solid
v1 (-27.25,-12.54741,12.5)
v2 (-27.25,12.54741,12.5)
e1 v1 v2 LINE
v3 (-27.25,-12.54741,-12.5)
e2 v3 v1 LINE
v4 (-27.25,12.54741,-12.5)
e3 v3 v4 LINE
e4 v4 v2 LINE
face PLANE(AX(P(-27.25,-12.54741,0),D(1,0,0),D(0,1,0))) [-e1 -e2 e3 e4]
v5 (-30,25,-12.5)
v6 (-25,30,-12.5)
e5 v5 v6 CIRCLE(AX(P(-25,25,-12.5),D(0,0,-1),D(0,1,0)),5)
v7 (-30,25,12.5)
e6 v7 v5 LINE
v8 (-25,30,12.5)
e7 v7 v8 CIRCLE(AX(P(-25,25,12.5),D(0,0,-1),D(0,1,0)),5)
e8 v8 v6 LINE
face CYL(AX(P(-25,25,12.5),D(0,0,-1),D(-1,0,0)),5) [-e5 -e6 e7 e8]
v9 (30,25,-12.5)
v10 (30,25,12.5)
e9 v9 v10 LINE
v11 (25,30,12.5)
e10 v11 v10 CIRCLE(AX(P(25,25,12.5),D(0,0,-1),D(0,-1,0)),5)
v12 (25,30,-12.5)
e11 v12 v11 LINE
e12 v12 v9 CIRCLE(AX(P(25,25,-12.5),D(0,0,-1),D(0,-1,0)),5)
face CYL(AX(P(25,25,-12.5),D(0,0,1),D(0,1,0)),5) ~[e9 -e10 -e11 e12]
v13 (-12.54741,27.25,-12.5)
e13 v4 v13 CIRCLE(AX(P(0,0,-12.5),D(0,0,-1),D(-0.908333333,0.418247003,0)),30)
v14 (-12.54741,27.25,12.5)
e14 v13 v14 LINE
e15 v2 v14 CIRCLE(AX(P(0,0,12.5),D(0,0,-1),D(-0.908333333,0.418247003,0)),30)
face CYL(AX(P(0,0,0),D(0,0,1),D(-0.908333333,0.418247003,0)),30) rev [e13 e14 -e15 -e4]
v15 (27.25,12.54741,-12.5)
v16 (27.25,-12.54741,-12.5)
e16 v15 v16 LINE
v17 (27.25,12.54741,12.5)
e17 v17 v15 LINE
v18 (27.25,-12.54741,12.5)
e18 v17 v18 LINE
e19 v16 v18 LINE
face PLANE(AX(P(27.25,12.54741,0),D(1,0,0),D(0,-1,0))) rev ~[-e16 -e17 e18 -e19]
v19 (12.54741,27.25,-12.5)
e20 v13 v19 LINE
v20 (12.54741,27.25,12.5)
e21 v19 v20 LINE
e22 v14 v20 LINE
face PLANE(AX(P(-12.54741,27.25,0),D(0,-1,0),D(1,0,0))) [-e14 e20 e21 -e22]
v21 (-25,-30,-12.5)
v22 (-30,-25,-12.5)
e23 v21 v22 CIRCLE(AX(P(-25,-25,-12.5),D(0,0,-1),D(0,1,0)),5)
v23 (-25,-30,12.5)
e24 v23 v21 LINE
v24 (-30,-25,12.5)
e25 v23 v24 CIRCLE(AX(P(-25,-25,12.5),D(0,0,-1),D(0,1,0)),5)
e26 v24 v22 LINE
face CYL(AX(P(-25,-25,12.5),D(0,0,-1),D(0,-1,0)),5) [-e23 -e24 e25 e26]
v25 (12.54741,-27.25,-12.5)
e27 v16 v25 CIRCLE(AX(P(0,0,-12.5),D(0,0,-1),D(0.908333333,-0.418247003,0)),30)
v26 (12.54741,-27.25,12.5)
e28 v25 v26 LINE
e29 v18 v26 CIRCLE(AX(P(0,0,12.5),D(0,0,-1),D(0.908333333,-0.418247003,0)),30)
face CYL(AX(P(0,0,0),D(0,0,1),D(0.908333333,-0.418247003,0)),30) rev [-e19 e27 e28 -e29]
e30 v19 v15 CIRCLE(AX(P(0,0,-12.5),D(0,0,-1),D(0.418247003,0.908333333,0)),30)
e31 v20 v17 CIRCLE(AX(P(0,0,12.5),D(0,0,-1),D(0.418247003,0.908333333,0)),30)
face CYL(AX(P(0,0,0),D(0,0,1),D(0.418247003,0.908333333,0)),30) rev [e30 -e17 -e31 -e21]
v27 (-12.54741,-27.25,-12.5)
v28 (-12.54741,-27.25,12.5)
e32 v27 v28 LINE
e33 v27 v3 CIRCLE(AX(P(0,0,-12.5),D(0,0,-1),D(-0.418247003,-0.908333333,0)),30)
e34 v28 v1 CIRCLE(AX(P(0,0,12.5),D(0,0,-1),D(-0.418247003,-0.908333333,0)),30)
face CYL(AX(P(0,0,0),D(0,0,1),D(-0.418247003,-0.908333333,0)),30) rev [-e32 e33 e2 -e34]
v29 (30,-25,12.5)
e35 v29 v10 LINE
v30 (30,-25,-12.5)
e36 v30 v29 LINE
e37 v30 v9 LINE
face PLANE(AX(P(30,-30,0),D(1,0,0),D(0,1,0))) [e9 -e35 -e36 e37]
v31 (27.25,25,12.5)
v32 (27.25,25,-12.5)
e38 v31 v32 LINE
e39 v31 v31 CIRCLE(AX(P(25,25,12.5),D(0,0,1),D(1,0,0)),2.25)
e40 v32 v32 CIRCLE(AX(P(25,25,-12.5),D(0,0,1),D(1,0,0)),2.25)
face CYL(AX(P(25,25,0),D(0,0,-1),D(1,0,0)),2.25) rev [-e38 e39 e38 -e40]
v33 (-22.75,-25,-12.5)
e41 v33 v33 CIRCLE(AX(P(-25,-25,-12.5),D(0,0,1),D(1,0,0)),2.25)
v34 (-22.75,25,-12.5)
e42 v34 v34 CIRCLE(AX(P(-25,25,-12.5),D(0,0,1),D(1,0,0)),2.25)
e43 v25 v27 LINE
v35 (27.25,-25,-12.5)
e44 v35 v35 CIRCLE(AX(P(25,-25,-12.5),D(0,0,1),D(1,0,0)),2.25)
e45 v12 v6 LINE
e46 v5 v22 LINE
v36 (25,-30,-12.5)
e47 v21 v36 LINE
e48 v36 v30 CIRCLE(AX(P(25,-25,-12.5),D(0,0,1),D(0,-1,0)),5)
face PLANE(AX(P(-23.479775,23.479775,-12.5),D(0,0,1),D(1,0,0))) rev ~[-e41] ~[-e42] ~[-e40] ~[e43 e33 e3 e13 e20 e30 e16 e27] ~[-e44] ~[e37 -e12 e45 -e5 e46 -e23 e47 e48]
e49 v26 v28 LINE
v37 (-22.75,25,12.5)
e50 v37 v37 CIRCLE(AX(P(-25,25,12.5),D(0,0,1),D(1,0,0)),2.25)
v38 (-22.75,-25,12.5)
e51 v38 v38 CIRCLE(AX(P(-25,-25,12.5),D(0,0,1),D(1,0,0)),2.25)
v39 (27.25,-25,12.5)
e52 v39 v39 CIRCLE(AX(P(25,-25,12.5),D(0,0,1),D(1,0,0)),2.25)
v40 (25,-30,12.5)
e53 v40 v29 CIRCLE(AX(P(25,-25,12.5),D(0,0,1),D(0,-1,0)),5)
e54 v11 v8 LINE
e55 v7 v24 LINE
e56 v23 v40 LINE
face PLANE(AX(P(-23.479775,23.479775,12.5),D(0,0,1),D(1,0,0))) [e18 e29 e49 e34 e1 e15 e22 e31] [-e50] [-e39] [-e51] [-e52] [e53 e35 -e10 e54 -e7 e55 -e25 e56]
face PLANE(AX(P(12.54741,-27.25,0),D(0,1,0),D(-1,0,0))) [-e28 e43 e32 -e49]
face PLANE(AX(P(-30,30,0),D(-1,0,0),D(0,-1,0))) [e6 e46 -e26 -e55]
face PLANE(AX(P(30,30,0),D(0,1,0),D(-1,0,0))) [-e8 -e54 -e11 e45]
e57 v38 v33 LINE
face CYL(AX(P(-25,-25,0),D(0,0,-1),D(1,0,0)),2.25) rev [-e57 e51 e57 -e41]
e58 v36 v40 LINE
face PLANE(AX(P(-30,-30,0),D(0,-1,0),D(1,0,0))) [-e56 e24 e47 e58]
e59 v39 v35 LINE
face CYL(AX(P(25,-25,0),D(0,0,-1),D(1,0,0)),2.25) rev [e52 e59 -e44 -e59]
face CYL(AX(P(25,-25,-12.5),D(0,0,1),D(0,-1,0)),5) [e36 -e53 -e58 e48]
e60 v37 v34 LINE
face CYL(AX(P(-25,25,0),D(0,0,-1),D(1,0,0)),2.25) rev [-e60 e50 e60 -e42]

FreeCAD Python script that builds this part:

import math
import FreeCAD as App
import Part
import Sketcher
from FreeCAD import Vector


def edges_at(feature, points):
    """Names of the edges that pass closest to the given points."""
    edges = feature.Shape.Edges
    near = lambda p: min(range(len(edges)), key=lambda i: edges[i].distToShape(Part.Vertex(*p))[0])
    return sorted({f"Edge{near(p) + 1}" for p in points})


def add_polygon(sketch, points):
    """Adds a closed chain of lines whose ends are joined by coincident constraints."""
    first, n = sketch.GeometryCount, len(points)
    for a, b in zip(points, points[1:] + points[:1]):
        sketch.addGeometry(Part.LineSegment(App.Vector(*a, 0), App.Vector(*b, 0)), False)
    for i in range(n):
        sketch.addConstraint(Sketcher.Constraint("Coincident", first + i, 2, first + (i + 1) % n, 1))

doc = App.newDocument("Part")
params = doc.addObject("Spreadsheet::Sheet", "Params")
for row, (alias, value) in enumerate([
    ("sketch1_radius", "30 mm"),
    ("sketch1_diameter", "4.5 mm"),
    ("sketch1_width", "60 mm"),
    ("pad1_length", "25 mm"),
    ("fillet_radius", "5 mm"),
], start=1):
    params.set(f"A{row}", alias)
    params.set(f"B{row}", "=" + value)
    params.setAlias(f"B{row}", alias)

body = doc.addObject("PartDesign::Body", "Body")

# Sketch on XY plane
sketch1 = doc.addObject("Sketcher::SketchObject", "Sketch")
body.addObject(sketch1)
sketch1.AttachmentSupport = (doc.XY_Plane, [""])
sketch1.MapMode = "FlatFace"
add_polygon(sketch1, [(-30, -30), (30, -30), (30, 30), (-30, 30)])  # lines 0-3
sketch1.addGeometry(Part.Circle(Vector(-25, -25, 0), Vector(0, 0, 1), 2.25), False)  # 4
sketch1.addGeometry(Part.Circle(Vector(25, -25, 0), Vector(0, 0, 1), 2.25), False)  # 5
sketch1.addGeometry(Part.Circle(Vector(-25, 25, 0), Vector(0, 0, 1), 2.25), False)  # 6
sketch1.addGeometry(Part.ArcOfCircle(Part.Circle(Vector(0, 0, 0), Vector(0, 0, 1), 30), math.radians(-65.276037), math.radians(-24.723963)), False)  # 7
sketch1.addGeometry(Part.LineSegment(Vector(12.54741, -27.25, 0), Vector(-12.54741, -27.25, 0)), False)  # 8
sketch1.addGeometry(Part.ArcOfCircle(Part.Circle(Vector(0, 0, 0), Vector(0, 0, 1), 30), math.radians(-155.276037), math.radians(-114.723963)), False)  # 9
sketch1.addGeometry(Part.LineSegment(Vector(-27.25, -12.54741, 0), Vector(-27.25, 12.54741, 0)), False)  # 10
sketch1.addGeometry(Part.ArcOfCircle(Part.Circle(Vector(0, 0, 0), Vector(0, 0, 1), 30), math.radians(114.723963), math.radians(155.276037)), False)  # 11
sketch1.addGeometry(Part.LineSegment(Vector(-12.54741, 27.25, 0), Vector(12.54741, 27.25, 0)), False)  # 12
sketch1.addGeometry(Part.ArcOfCircle(Part.Circle(Vector(0, 0, 0), Vector(0, 0, 1), 30), math.radians(24.723963), math.radians(65.276037)), False)  # 13
sketch1.addGeometry(Part.LineSegment(Vector(27.25, 12.54741, 0), Vector(27.25, -12.54741, 0)), False)  # 14
sketch1.addGeometry(Part.Circle(Vector(25, 25, 0), Vector(0, 0, 1), 2.25), False)  # 15
sketch1.addConstraint([
    Sketcher.Constraint("Coincident", 7, 1, 8, 1),
    Sketcher.Constraint("Coincident", 8, 2, 9, 2),
    Sketcher.Constraint("Coincident", 9, 1, 10, 1),
    Sketcher.Constraint("Coincident", 10, 2, 11, 2),
    Sketcher.Constraint("Coincident", 11, 1, 12, 1),
    Sketcher.Constraint("Coincident", 12, 2, 13, 2),
    Sketcher.Constraint("Coincident", 13, 1, 14, 1),
    Sketcher.Constraint("Coincident", 14, 2, 7, 2),
    Sketcher.Constraint("Horizontal", 0),
    Sketcher.Constraint("Vertical", 1),
    Sketcher.Constraint("Horizontal", 2),
    Sketcher.Constraint("Vertical", 3),
    Sketcher.Constraint("Horizontal", 8),
    Sketcher.Constraint("Vertical", 10),
    Sketcher.Constraint("Horizontal", 12),
    Sketcher.Constraint("Vertical", 14),
    Sketcher.Constraint("Coincident", 7, 3, -1, 1),
    Sketcher.Constraint("Coincident", 9, 3, -1, 1),
    Sketcher.Constraint("Coincident", 11, 3, -1, 1),
    Sketcher.Constraint("Coincident", 13, 3, -1, 1),
    Sketcher.Constraint("Equal", 4, 5),
    Sketcher.Constraint("Equal", 5, 6),
    Sketcher.Constraint("Equal", 7, 9),
    Sketcher.Constraint("Equal", 9, 11),
    Sketcher.Constraint("Equal", 11, 13),
    Sketcher.Constraint("Equal", 6, 15),
    Sketcher.Constraint("Symmetric", 5, 3, 6, 3, -1, 1),
    Sketcher.Constraint("Symmetric", 4, 3, 15, 3, -1, 1),
    Sketcher.Constraint("Symmetric", 0, 2, 2, 2, -1, 1),
    Sketcher.Constraint("Symmetric", 4, 3, 5, 3, -2),
    Sketcher.Constraint("Horizontal", 10, 2, 13, 1),
    Sketcher.Constraint("Vertical", 8, 2, 11, 1),
    Sketcher.Constraint("Equal", 2, 1),
    Sketcher.Constraint("Equal", 12, 10),
    Sketcher.Constraint("Radius", 7, 30.0),
    Sketcher.Constraint("Diameter", 4, 4.5),
    Sketcher.Constraint("DistanceX", 0, 1, 0, 2, 60.0),
    Sketcher.Constraint("DistanceX", 4, 3, -1, 1, 25.0),
    Sketcher.Constraint("DistanceY", 4, 3, -1, 1, 25.0),
    Sketcher.Constraint("DistanceY", 7, 1, -1, 1, 27.25),
])
sketch1.setExpression("Constraints[38]", "Params.sketch1_radius")
sketch1.setExpression("Constraints[39]", "Params.sketch1_diameter")
sketch1.setExpression("Constraints[40]", "Params.sketch1_width")
pad1 = doc.addObject("PartDesign::Pad", "Pad")
body.addObject(pad1)
pad1.Profile = sketch1
pad1.setExpression("Length", "Params.pad1_length")
pad1.Midplane = True
doc.recompute()

fillet = doc.addObject("PartDesign::Fillet", "Fillet")
body.addObject(fillet)
fillet.Base = (pad1, edges_at(pad1, [
    (-30, 30, 0),
    (30, -30, 0),
    (30, 30, 0),
    (-30, -30, 0),
]))
fillet.setExpression("Radius", "Params.fillet_radius")

doc.recompute()
